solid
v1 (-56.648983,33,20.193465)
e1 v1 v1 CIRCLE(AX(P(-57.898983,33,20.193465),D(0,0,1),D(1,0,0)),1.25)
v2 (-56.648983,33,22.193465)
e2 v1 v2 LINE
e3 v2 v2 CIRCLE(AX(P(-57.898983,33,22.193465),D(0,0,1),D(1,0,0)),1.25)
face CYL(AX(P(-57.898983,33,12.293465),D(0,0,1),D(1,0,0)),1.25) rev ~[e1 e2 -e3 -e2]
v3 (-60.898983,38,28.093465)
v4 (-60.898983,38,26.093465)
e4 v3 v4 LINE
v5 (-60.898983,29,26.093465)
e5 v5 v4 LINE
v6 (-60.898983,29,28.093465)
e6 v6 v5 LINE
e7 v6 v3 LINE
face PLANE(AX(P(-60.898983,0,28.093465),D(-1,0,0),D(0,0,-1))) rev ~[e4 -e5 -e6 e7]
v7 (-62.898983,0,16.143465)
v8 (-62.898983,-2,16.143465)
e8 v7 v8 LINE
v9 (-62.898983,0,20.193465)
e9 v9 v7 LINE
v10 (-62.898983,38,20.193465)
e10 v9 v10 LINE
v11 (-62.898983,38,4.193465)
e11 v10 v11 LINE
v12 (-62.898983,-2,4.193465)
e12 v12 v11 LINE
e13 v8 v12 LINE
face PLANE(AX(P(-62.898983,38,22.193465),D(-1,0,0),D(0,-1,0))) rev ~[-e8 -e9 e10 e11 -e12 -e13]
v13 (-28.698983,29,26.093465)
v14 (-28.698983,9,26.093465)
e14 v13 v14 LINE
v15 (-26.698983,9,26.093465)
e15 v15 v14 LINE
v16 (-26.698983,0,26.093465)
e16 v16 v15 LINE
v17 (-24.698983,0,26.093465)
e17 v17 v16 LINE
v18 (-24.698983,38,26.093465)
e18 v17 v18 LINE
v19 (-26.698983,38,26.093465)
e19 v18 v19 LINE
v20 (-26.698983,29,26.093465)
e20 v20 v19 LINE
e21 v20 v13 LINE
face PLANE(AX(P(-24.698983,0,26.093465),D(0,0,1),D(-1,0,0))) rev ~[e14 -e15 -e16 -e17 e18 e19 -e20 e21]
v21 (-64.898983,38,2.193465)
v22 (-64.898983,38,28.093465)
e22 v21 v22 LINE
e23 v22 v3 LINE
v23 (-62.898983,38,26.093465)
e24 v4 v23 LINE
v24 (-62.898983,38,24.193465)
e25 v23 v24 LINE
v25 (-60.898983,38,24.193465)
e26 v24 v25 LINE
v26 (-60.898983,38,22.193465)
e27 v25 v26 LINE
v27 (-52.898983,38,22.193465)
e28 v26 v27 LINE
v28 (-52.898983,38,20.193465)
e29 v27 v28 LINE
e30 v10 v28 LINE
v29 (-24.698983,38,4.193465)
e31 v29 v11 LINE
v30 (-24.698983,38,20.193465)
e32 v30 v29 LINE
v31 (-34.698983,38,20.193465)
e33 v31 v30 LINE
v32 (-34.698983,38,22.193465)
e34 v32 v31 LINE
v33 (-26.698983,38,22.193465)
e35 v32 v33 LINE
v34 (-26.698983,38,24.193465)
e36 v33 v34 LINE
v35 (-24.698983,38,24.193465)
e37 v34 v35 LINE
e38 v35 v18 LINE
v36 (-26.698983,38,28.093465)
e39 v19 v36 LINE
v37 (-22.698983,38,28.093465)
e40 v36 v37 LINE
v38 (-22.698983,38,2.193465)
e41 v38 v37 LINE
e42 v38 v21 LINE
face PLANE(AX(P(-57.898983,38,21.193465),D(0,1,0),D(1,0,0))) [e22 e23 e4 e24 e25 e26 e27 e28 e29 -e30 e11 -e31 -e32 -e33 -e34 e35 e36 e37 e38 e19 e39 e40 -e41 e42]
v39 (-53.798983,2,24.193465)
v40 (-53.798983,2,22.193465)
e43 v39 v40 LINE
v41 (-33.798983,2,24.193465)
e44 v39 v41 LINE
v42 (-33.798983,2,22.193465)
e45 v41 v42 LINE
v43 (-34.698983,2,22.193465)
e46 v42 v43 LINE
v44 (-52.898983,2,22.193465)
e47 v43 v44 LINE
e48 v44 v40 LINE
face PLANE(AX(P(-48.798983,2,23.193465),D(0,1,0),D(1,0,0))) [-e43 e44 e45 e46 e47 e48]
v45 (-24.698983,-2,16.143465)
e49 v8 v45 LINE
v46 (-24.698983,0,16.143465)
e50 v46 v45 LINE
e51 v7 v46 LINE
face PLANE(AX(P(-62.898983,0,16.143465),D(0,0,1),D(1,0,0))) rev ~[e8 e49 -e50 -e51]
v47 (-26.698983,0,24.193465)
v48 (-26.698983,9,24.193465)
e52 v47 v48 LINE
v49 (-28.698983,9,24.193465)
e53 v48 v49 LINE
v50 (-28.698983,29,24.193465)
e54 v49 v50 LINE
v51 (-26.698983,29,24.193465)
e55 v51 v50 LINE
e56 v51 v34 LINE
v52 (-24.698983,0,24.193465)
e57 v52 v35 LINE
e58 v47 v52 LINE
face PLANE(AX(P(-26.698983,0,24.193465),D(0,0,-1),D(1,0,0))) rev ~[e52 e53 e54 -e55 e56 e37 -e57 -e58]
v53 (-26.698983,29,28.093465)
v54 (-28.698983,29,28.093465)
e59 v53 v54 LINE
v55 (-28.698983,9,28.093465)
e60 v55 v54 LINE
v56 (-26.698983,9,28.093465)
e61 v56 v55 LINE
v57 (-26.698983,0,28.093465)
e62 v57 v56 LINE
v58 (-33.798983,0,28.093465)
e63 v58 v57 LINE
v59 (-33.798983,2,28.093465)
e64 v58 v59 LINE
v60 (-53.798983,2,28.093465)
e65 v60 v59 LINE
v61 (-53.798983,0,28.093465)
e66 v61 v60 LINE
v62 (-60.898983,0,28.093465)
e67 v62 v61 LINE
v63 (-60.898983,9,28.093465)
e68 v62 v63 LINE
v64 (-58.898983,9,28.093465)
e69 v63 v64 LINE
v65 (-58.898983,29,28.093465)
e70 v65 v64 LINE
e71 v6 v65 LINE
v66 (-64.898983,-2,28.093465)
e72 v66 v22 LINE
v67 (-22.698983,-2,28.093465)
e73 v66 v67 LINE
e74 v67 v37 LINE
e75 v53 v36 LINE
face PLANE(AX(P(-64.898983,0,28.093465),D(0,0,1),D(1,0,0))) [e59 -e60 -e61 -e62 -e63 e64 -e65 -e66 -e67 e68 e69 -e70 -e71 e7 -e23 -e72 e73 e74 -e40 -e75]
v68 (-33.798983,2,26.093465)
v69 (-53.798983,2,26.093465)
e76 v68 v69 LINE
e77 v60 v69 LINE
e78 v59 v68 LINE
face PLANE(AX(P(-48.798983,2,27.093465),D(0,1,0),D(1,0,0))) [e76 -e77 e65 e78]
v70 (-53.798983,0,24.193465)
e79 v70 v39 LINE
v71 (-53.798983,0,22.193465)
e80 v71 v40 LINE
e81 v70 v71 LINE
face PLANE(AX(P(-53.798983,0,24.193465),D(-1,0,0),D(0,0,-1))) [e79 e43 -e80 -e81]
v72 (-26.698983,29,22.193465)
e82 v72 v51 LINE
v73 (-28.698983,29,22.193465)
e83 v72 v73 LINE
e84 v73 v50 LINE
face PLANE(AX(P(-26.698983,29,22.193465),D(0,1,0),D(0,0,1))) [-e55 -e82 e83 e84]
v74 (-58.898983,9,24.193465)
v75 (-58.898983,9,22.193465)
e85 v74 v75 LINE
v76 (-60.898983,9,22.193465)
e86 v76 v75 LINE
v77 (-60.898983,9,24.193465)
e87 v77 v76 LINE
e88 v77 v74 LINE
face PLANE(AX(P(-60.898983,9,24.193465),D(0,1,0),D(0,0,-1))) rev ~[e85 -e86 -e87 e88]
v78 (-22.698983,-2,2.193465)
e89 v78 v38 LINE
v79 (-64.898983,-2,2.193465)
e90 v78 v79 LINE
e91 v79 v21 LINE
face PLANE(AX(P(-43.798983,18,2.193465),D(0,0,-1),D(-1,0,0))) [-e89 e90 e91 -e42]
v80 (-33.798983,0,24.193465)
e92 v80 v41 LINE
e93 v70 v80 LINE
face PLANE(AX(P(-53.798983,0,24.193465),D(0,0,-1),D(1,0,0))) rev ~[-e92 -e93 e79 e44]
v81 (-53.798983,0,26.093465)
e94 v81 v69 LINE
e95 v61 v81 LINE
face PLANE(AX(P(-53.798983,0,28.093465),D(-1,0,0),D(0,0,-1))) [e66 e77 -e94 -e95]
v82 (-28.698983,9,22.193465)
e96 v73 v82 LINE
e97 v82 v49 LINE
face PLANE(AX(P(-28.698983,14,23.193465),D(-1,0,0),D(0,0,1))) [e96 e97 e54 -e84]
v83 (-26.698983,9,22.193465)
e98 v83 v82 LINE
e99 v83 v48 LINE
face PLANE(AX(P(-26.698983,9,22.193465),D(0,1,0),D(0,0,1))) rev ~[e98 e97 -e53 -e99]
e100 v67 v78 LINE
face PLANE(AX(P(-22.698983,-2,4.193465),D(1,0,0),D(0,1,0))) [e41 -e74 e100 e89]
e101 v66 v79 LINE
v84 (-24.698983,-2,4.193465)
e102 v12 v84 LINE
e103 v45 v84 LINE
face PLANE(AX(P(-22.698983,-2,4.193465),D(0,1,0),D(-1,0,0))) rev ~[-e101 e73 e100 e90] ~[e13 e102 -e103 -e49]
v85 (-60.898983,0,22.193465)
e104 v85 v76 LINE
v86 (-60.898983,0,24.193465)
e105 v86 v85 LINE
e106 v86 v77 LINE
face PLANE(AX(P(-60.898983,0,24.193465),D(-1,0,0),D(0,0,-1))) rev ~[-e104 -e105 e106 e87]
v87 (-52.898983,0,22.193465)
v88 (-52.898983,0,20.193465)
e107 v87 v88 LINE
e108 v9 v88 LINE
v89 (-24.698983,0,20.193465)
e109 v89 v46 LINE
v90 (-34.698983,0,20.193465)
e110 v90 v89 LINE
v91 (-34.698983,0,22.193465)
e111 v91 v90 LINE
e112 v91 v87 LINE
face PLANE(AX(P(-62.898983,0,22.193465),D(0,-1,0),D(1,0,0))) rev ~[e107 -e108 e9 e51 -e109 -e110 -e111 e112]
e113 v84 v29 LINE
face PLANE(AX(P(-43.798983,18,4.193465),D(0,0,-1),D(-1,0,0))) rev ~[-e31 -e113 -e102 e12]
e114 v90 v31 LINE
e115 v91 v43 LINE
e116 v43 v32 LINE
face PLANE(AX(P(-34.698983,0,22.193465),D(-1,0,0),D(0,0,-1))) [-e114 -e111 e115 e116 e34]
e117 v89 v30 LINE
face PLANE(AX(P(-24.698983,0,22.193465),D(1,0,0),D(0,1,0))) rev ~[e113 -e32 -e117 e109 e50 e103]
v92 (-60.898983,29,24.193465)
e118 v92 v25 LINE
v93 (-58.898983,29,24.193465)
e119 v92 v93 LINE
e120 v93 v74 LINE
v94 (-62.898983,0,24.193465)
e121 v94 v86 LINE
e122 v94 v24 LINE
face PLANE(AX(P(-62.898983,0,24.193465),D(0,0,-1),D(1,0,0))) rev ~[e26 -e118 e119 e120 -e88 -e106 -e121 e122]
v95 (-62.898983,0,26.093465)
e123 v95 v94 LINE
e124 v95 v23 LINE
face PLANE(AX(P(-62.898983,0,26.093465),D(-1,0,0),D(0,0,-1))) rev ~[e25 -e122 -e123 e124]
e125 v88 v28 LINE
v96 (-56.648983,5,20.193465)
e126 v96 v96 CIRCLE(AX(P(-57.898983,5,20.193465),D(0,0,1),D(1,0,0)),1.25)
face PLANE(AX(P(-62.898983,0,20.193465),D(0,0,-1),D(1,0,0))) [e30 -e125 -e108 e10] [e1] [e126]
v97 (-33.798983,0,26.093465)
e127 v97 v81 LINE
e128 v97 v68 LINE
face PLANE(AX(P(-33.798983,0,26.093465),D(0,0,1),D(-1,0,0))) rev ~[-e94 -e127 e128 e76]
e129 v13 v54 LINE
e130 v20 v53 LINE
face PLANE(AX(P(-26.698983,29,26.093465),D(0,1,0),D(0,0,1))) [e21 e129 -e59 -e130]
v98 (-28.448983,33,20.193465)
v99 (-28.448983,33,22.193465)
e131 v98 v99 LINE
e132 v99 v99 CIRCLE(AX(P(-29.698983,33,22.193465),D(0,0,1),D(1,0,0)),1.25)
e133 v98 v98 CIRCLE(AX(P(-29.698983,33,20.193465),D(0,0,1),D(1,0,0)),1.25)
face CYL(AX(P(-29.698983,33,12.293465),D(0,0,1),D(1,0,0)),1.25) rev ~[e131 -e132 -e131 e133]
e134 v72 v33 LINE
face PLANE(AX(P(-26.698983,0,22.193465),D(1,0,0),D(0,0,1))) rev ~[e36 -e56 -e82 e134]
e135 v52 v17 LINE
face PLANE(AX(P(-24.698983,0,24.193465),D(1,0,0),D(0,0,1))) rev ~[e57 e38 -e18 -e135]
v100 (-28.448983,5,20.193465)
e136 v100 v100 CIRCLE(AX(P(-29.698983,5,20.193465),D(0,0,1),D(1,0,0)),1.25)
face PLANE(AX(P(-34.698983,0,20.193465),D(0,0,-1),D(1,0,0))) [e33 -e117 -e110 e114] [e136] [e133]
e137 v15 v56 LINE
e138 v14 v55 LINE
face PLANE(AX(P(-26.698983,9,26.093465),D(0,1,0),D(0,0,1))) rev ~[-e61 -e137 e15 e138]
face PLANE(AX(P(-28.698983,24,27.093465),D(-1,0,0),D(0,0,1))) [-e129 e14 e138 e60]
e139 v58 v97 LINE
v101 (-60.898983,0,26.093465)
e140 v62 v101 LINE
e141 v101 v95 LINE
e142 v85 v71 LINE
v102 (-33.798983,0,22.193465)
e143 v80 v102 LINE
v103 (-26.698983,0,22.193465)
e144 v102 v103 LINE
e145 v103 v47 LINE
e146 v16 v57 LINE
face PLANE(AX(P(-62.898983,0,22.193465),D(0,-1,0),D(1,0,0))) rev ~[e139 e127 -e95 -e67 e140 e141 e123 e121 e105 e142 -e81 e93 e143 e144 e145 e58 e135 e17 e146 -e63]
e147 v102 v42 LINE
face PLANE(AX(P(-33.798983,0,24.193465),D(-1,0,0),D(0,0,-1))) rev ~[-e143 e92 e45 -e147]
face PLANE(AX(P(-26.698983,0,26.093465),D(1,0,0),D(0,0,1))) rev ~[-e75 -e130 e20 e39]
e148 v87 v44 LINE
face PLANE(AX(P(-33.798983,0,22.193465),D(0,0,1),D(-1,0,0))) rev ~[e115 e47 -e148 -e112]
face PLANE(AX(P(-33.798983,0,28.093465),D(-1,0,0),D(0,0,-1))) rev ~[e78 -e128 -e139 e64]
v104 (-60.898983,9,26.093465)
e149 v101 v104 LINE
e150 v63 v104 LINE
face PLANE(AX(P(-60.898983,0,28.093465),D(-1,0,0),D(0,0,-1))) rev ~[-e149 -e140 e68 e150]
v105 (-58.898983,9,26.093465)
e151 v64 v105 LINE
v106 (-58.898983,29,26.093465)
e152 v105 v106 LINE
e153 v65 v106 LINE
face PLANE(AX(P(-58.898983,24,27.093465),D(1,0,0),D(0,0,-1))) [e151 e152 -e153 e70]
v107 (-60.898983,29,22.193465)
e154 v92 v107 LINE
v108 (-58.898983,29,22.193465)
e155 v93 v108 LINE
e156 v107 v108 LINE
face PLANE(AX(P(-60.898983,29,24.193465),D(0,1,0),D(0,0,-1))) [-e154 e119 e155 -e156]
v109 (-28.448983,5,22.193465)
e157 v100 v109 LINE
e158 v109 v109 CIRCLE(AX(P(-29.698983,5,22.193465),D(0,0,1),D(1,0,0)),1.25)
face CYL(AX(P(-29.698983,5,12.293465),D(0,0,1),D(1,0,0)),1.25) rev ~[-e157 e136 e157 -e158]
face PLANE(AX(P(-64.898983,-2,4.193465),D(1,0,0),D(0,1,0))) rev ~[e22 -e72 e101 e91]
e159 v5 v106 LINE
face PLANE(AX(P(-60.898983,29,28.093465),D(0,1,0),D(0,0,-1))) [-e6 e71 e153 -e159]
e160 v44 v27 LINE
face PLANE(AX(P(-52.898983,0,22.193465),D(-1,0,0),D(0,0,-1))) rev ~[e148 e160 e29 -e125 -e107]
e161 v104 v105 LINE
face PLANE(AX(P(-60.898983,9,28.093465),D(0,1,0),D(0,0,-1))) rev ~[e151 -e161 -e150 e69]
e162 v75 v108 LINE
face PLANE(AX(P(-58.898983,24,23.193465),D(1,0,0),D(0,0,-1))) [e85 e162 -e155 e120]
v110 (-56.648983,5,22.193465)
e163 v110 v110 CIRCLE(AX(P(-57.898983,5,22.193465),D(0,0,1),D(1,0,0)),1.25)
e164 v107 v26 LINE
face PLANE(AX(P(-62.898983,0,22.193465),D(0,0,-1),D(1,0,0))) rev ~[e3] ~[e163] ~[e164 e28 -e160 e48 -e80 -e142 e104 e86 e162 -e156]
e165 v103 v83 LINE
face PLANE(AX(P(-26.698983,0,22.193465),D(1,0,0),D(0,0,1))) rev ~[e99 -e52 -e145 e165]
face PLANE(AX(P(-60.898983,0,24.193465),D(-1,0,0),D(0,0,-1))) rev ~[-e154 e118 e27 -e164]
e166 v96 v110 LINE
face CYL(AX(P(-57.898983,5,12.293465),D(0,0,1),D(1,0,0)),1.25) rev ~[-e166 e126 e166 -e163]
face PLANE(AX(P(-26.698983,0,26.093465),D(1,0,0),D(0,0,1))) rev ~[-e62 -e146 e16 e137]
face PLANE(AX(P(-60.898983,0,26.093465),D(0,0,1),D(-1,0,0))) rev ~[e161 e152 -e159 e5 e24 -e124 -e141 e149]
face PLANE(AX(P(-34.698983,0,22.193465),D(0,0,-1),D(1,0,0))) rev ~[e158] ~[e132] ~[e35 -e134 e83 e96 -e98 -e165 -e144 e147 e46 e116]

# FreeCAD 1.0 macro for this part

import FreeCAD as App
import Part
import Sketcher
Q = App.Units.Quantity

doc = App.newDocument("Part")
body = doc.addObject("PartDesign::Body", "Body")

sketch1 = body.newObject("Sketcher::SketchObject", "Sketch")
sketch1.AttachmentSupport = (doc.getObject("XZ_Plane"), [""])
sketch1.MapMode = "FlatFace"
sketch1.addGeometry([
    Part.LineSegment(App.Vector(-62.9, 26.1, 0), App.Vector(-62.9, 24.2, 0)),
    Part.LineSegment(App.Vector(-62.9, 24.2, 0), App.Vector(-60.9, 24.2, 0)),
    Part.LineSegment(App.Vector(-60.9, 24.2, 0), App.Vector(-60.9, 22.2, 0)),
    Part.LineSegment(App.Vector(-60.9, 22.2, 0), App.Vector(-64.9, 22.2, 0)),
    Part.LineSegment(App.Vector(-64.9, 22.2, 0), App.Vector(-64.9, 28.1, 0)),
    Part.LineSegment(App.Vector(-64.9, 28.1, 0), App.Vector(-60.9, 28.1, 0)),
    Part.LineSegment(App.Vector(-60.9, 28.1, 0), App.Vector(-60.9, 26.1, 0)),
    Part.LineSegment(App.Vector(-60.9, 26.1, 0), App.Vector(-62.9, 26.1, 0)),
], False)
sketch1.addConstraint([
    Sketcher.Constraint("Coincident", 0, 2, 1, 1),
    Sketcher.Constraint("Coincident", 1, 2, 2, 1),
    Sketcher.Constraint("Coincident", 2, 2, 3, 1),
    Sketcher.Constraint("Coincident", 3, 2, 4, 1),
    Sketcher.Constraint("Coincident", 4, 2, 5, 1),
    Sketcher.Constraint("Coincident", 5, 2, 6, 1),
    Sketcher.Constraint("Coincident", 6, 2, 7, 1),
    Sketcher.Constraint("Coincident", 7, 2, 0, 1),
    Sketcher.Constraint("Vertical", 0),
    Sketcher.Constraint("Horizontal", 1),
    Sketcher.Constraint("Vertical", 2),
    Sketcher.Constraint("Horizontal", 3),
    Sketcher.Constraint("Vertical", 4),
    Sketcher.Constraint("Horizontal", 5),
    Sketcher.Constraint("Vertical", 6),
    Sketcher.Constraint("Horizontal", 7),
    Sketcher.Constraint("Vertical", 2, 2, 5, 2),
    Sketcher.Constraint("Equal", 7, 2),
    Sketcher.Constraint("Equal", 2, 6),
    Sketcher.Constraint("DistanceX", 1, 1, 1, 2, Q("2 mm")),
    Sketcher.Constraint("DistanceX", 3, 2, 3, 1, Q("4 mm")),
    Sketcher.Constraint("DistanceY", 0, 2, 0, 1, Q("1.9 mm")),
    Sketcher.Constraint("DistanceX", 0, 2, -1, 1, Q("62.898983 mm")),
    Sketcher.Constraint("DistanceY", -1, 1, 0, 2, Q("24.193465 mm")),
])
pad1 = body.newObject("PartDesign::Pad", "Pad")
pad1.Profile = sketch1
pad1.Length = 38
pad1.Reversed = True
body2 = doc.addObject("PartDesign::Body", "Body001")

sketch2 = body2.newObject("Sketcher::SketchObject", "Sketch001")
sketch2.AttachmentSupport = (doc.getObject("XZ_Plane001"), [""])
sketch2.MapMode = "FlatFace"
sketch2.addGeometry([
    Part.LineSegment(App.Vector(-26.7, 22.2, 0), App.Vector(-26.7, 24.2, 0)),
    Part.LineSegment(App.Vector(-26.7, 24.2, 0), App.Vector(-24.7, 24.2, 0)),
    Part.LineSegment(App.Vector(-24.7, 24.2, 0), App.Vector(-24.7, 26.1, 0)),
    Part.LineSegment(App.Vector(-24.7, 26.1, 0), App.Vector(-26.7, 26.1, 0)),
    Part.LineSegment(App.Vector(-26.7, 26.1, 0), App.Vector(-26.7, 28.1, 0)),
    Part.LineSegment(App.Vector(-26.7, 28.1, 0), App.Vector(-22.7, 28.1, 0)),
    Part.LineSegment(App.Vector(-22.7, 28.1, 0), App.Vector(-22.7, 22.2, 0)),
    Part.LineSegment(App.Vector(-22.7, 22.2, 0), App.Vector(-26.7, 22.2, 0)),
], False)
sketch2.addConstraint([
    Sketcher.Constraint("Coincident", 0, 2, 1, 1),
    Sketcher.Constraint("Coincident", 1, 2, 2, 1),
    Sketcher.Constraint("Coincident", 2, 2, 3, 1),
    Sketcher.Constraint("Coincident", 3, 2, 4, 1),
    Sketcher.Constraint("Coincident", 4, 2, 5, 1),
    Sketcher.Constraint("Coincident", 5, 2, 6, 1),
    Sketcher.Constraint("Coincident", 6, 2, 7, 1),
    Sketcher.Constraint("Coincident", 7, 2, 0, 1),
    Sketcher.Constraint("Vertical", 0),
    Sketcher.Constraint("Horizontal", 1),
    Sketcher.Constraint("Vertical", 2),
    Sketcher.Constraint("Horizontal", 3),
    Sketcher.Constraint("Vertical", 4),
    Sketcher.Constraint("Horizontal", 5),
    Sketcher.Constraint("Vertical", 6),
    Sketcher.Constraint("Horizontal", 7),
    Sketcher.Constraint("Vertical", 0, 2, 3, 2),
    Sketcher.Constraint("Equal", 3, 0),
    Sketcher.Constraint("Equal", 0, 4),
    Sketcher.Constraint("DistanceX", 1, 1, 1, 2, Q("2 mm")),
    Sketcher.Constraint("DistanceX", 5, 1, 5, 2, Q("4 mm")),
    Sketcher.Constraint("DistanceY", 2, 1, 2, 2, Q("1.9 mm")),
    Sketcher.Constraint("DistanceX", 0, 2, -1, 1, Q("26.698983 mm")),
    Sketcher.Constraint("DistanceY", -1, 1, 0, 2, Q("24.193465 mm")),
])
pad2 = body2.newObject("PartDesign::Pad", "Pad001")
pad2.Profile = sketch2
pad2.Length = 38
pad2.Reversed = True
body.AllowCompound = True
doc.recompute()

boolean = body.newObject("PartDesign::Boolean", "Boolean")
boolean.Type = "Fuse"
boolean.addObjects([body2])

sketch3 = body.newObject("Sketcher::SketchObject", "Sketch002")
sketch3.AttachmentSupport = (doc.getObject("XZ_Plane"), [""])
sketch3.MapMode = "FlatFace"
sketch3.addGeometry([
    Part.LineSegment(App.Vector(-65, 22, 0), App.Vector(-65, 28, 0)),
    Part.LineSegment(App.Vector(-65, 28, 0), App.Vector(-23, 28, 0)),
    Part.LineSegment(App.Vector(-23, 28, 0), App.Vector(-23, 22, 0)),
    Part.LineSegment(App.Vector(-23, 22, 0), App.Vector(-65, 22, 0)),
], False)
sketch3.addConstraint([
    Sketcher.Constraint("Coincident", 0, 2, 1, 1),
    Sketcher.Constraint("Coincident", 1, 2, 2, 1),
    Sketcher.Constraint("Coincident", 2, 2, 3, 1),
    Sketcher.Constraint("Coincident", 3, 2, 0, 1),
    Sketcher.Constraint("Vertical", 0),
    Sketcher.Constraint("Horizontal", 1),
    Sketcher.Constraint("Vertical", 2),
    Sketcher.Constraint("Horizontal", 3),
    Sketcher.Constraint("DistanceX", 1, 1, 1, 2, Q("42.2 mm")),
    Sketcher.Constraint("DistanceY", 0, 1, 0, 2, Q("5.9 mm")),
    Sketcher.Constraint("DistanceX", 0, 2, -1, 1, Q("64.898983 mm")),
    Sketcher.Constraint("DistanceY", -1, 1, 0, 2, Q("28.093465 mm")),
])
pad3 = body.newObject("PartDesign::Pad", "Pad002")
pad3.Profile = sketch3
pad3.Length = 2

sketch4 = body.newObject("Sketcher::SketchObject", "Sketch003")
sketch4.AttachmentSupport = (doc.getObject("XY_Plane"), [""])
sketch4.MapMode = "FlatFace"
sketch4.AttachmentOffset = App.Placement(App.Vector(0, 0, 22.193465), App.Rotation())
sketch4.addGeometry([
    Part.LineSegment(App.Vector(-24.7, 38, 0), App.Vector(-22.7, 38, 0)),
    Part.LineSegment(App.Vector(-22.7, 38, 0), App.Vector(-22.7, -2, 0)),
    Part.LineSegment(App.Vector(-22.7, -2, 0), App.Vector(-64.9, -2, 0)),
    Part.LineSegment(App.Vector(-64.9, -2, 0), App.Vector(-64.9, 38, 0)),
    Part.LineSegment(App.Vector(-64.9, 38, 0), App.Vector(-62.9, 38, 0)),
    Part.LineSegment(App.Vector(-62.9, 38, 0), App.Vector(-62.9, 0, 0)),
    Part.LineSegment(App.Vector(-62.9, 0, 0), App.Vector(-24.7, 0, 0)),
    Part.LineSegment(App.Vector(-24.7, 0, 0), App.Vector(-24.7, 38, 0)),
], False)
sketch4.addConstraint([
    Sketcher.Constraint("Coincident", 0, 2, 1, 1),
    Sketcher.Constraint("Coincident", 1, 2, 2, 1),
    Sketcher.Constraint("Coincident", 2, 2, 3, 1),
    Sketcher.Constraint("Coincident", 3, 2, 4, 1),
    Sketcher.Constraint("Coincident", 4, 2, 5, 1),
    Sketcher.Constraint("Coincident", 5, 2, 6, 1),
    Sketcher.Constraint("Coincident", 6, 2, 7, 1),
    Sketcher.Constraint("Coincident", 7, 2, 0, 1),
    Sketcher.Constraint("Horizontal", 0),
    Sketcher.Constraint("Vertical", 1),
    Sketcher.Constraint("Horizontal", 2),
    Sketcher.Constraint("Vertical", 3),
    Sketcher.Constraint("Horizontal", 4),
    Sketcher.Constraint("Vertical", 5),
    Sketcher.Constraint("Horizontal", 6),
    Sketcher.Constraint("Vertical", 7),
    Sketcher.Constraint("PointOnObject", 5, 2, -1),
    Sketcher.Constraint("Horizontal", 0, 2, 3, 2),
    Sketcher.Constraint("Equal", 0, 4),
    Sketcher.Constraint("DistanceX", 0, 1, 0, 2, Q("2 mm")),
    Sketcher.Constraint("DistanceY", 1, 2, 1, 1, Q("40 mm")),
    Sketcher.Constraint("DistanceY", 5, 2, 5, 1, Q("38 mm")),
    Sketcher.Constraint("DistanceX", 2, 2, 2, 1, Q("42.2 mm")),
    Sketcher.Constraint("DistanceX", 0, 2, -1, 1, Q("22.698983 mm")),
])
pad4 = body.newObject("PartDesign::Pad", "Pad003")
pad4.Profile = sketch4
pad4.Length = 18
pad4.Reversed = True

sketch5 = body.newObject("Sketcher::SketchObject", "Sketch004")
sketch5.AttachmentSupport = (doc.getObject("XY_Plane"), [""])
sketch5.MapMode = "FlatFace"
sketch5.AttachmentOffset = App.Placement(App.Vector(0, 0, 4.193465), App.Rotation())
sketch5.addGeometry([
    Part.LineSegment(App.Vector(-23, 38, 0), App.Vector(-23, -2, 0)),
    Part.LineSegment(App.Vector(-23, -2, 0), App.Vector(-65, -2, 0)),
    Part.LineSegment(App.Vector(-65, -2, 0), App.Vector(-65, 38, 0)),
    Part.LineSegment(App.Vector(-65, 38, 0), App.Vector(-23, 38, 0)),
], False)
sketch5.addConstraint([
    Sketcher.Constraint("Coincident", 0, 2, 1, 1),
    Sketcher.Constraint("Coincident", 1, 2, 2, 1),
    Sketcher.Constraint("Coincident", 2, 2, 3, 1),
    Sketcher.Constraint("Coincident", 3, 2, 0, 1),
    Sketcher.Constraint("Vertical", 0),
    Sketcher.Constraint("Horizontal", 1),
    Sketcher.Constraint("Vertical", 2),
    Sketcher.Constraint("Horizontal", 3),
    Sketcher.Constraint("DistanceY", 0, 2, 0, 1, Q("40 mm")),
    Sketcher.Constraint("DistanceX", 1, 2, 1, 1, Q("42.2 mm")),
    Sketcher.Constraint("DistanceY", 0, 2, -1, 1, Q("2 mm")),
    Sketcher.Constraint("DistanceX", 0, 2, -1, 1, Q("22.698983 mm")),
])
pad5 = body.newObject("PartDesign::Pad", "Pad004")
pad5.Profile = sketch5
pad5.Length = 2
pad5.Reversed = True

sketch6 = body.newObject("Sketcher::SketchObject", "Sketch005")
sketch6.AttachmentSupport = (doc.getObject("XZ_Plane"), [""])
sketch6.MapMode = "FlatFace"
sketch6.addGeometry([
    Part.LineSegment(App.Vector(-63, 4, 0), App.Vector(-63, 16, 0)),
    Part.LineSegment(App.Vector(-63, 16, 0), App.Vector(-25, 16, 0)),
    Part.LineSegment(App.Vector(-25, 16, 0), App.Vector(-25, 4, 0)),
    Part.LineSegment(App.Vector(-25, 4, 0), App.Vector(-63, 4, 0)),
], False)
sketch6.addConstraint([
    Sketcher.Constraint("Coincident", 0, 2, 1, 1),
    Sketcher.Constraint("Coincident", 1, 2, 2, 1),
    Sketcher.Constraint("Coincident", 2, 2, 3, 1),
    Sketcher.Constraint("Coincident", 3, 2, 0, 1),
    Sketcher.Constraint("Vertical", 0),
    Sketcher.Constraint("Horizontal", 1),
    Sketcher.Constraint("Vertical", 2),
    Sketcher.Constraint("Horizontal", 3),
    Sketcher.Constraint("DistanceX", 1, 1, 1, 2, Q("38.2 mm")),
    Sketcher.Constraint("DistanceY", 0, 1, 0, 2, Q("11.95 mm")),
    Sketcher.Constraint("DistanceX", 0, 2, -1, 1, Q("62.898983 mm")),
    Sketcher.Constraint("DistanceY", -1, 1, 0, 2, Q("16.143465 mm")),
])
pocket1 = body.newObject("PartDesign::Pocket", "Pocket")
pocket1.Profile = sketch6
pocket1.Type = "ThroughAll"
pocket1.Reversed = True

sketch7 = body.newObject("Sketcher::SketchObject", "Sketch006")
sketch7.AttachmentSupport = (doc.getObject("YZ_Plane"), [""])
sketch7.MapMode = "FlatFace"
sketch7.AttachmentOffset = App.Placement(App.Vector(0, 0, -60.898983), App.Rotation())
sketch7.addGeometry([
    Part.LineSegment(App.Vector(29, 28.1, 0), App.Vector(9, 28.1, 0)),
    Part.LineSegment(App.Vector(9, 28.1, 0), App.Vector(9, 26.1, 0)),
    Part.LineSegment(App.Vector(9, 26.1, 0), App.Vector(29, 26.1, 0)),
    Part.LineSegment(App.Vector(29, 26.1, 0), App.Vector(29, 28.1, 0)),
    Part.LineSegment(App.Vector(29, 24.2, 0), App.Vector(9, 24.2, 0)),
    Part.LineSegment(App.Vector(9, 24.2, 0), App.Vector(9, 22.2, 0)),
    Part.LineSegment(App.Vector(9, 22.2, 0), App.Vector(29, 22.2, 0)),
    Part.LineSegment(App.Vector(29, 22.2, 0), App.Vector(29, 24.2, 0)),
], False)
sketch7.addConstraint([
    Sketcher.Constraint("Coincident", 0, 2, 1, 1),
    Sketcher.Constraint("Coincident", 1, 2, 2, 1),
    Sketcher.Constraint("Coincident", 2, 2, 3, 1),
    Sketcher.Constraint("Coincident", 3, 2, 0, 1),
    Sketcher.Constraint("Coincident", 4, 2, 5, 1),
    Sketcher.Constraint("Coincident", 5, 2, 6, 1),
    Sketcher.Constraint("Coincident", 6, 2, 7, 1),
    Sketcher.Constraint("Coincident", 7, 2, 4, 1),
    Sketcher.Constraint("Horizontal", 0),
    Sketcher.Constraint("Vertical", 1),
    Sketcher.Constraint("Horizontal", 2),
    Sketcher.Constraint("Vertical", 3),
    Sketcher.Constraint("Horizontal", 4),
    Sketcher.Constraint("Vertical", 5),
    Sketcher.Constraint("Horizontal", 6),
    Sketcher.Constraint("Vertical", 7),
    Sketcher.Constraint("Vertical", 1, 2, 4, 2),
    Sketcher.Constraint("Vertical", 3, 2, 6, 2),
    Sketcher.Constraint("Equal", 3, 5),
    Sketcher.Constraint("DistanceX", 0, 2, 0, 1, Q("20 mm")),
    Sketcher.Constraint("DistanceY", 1, 2, 1, 1, Q("2 mm")),
    Sketcher.Constraint("DistanceX", -1, 1, 0, 2, Q("9 mm")),
    Sketcher.Constraint("DistanceY", 4, 2, 1, 2, Q("1.9 mm")),
    Sketcher.Constraint("DistanceY", -1, 1, 0, 2, Q("28.093465 mm")),
])
pad6 = body.newObject("PartDesign::Pad", "Pad005")
pad6.Profile = sketch7
pad6.Length = 2

sketch8 = body.newObject("Sketcher::SketchObject", "Sketch007")
sketch8.AttachmentSupport = (doc.getObject("YZ_Plane"), [""])
sketch8.MapMode = "FlatFace"
sketch8.AttachmentOffset = App.Placement(App.Vector(0, 0, -26.698983), App.Rotation())
sketch8.addGeometry([
    Part.LineSegment(App.Vector(29, 26.1, 0), App.Vector(9, 26.1, 0)),
    Part.LineSegment(App.Vector(9, 26.1, 0), App.Vector(9, 28.1, 0)),
    Part.LineSegment(App.Vector(9, 28.1, 0), App.Vector(29, 28.1, 0)),
    Part.LineSegment(App.Vector(29, 28.1, 0), App.Vector(29, 26.1, 0)),
    Part.LineSegment(App.Vector(9, 22.2, 0), App.Vector(9, 24.2, 0)),
    Part.LineSegment(App.Vector(9, 24.2, 0), App.Vector(29, 24.2, 0)),
    Part.LineSegment(App.Vector(29, 24.2, 0), App.Vector(29, 22.2, 0)),
    Part.LineSegment(App.Vector(29, 22.2, 0), App.Vector(9, 22.2, 0)),
], False)
sketch8.addConstraint([
    Sketcher.Constraint("Coincident", 0, 2, 1, 1),
    Sketcher.Constraint("Coincident", 1, 2, 2, 1),
    Sketcher.Constraint("Coincident", 2, 2, 3, 1),
    Sketcher.Constraint("Coincident", 3, 2, 0, 1),
    Sketcher.Constraint("Coincident", 4, 2, 5, 1),
    Sketcher.Constraint("Coincident", 5, 2, 6, 1),
    Sketcher.Constraint("Coincident", 6, 2, 7, 1),
    Sketcher.Constraint("Coincident", 7, 2, 4, 1),
    Sketcher.Constraint("Horizontal", 0),
    Sketcher.Constraint("Vertical", 1),
    Sketcher.Constraint("Horizontal", 2),
    Sketcher.Constraint("Vertical", 3),
    Sketcher.Constraint("Vertical", 4),
    Sketcher.Constraint("Horizontal", 5),
    Sketcher.Constraint("Vertical", 6),
    Sketcher.Constraint("Horizontal", 7),
    Sketcher.Constraint("Vertical", 1, 2, 4, 2),
    Sketcher.Constraint("Vertical", 3, 2, 5, 2),
    Sketcher.Constraint("Equal", 3, 4),
    Sketcher.Constraint("DistanceX", 0, 2, 0, 1, Q("20 mm")),
    Sketcher.Constraint("DistanceY", 1, 1, 1, 2, Q("2 mm")),
    Sketcher.Constraint("DistanceX", -1, 1, 0, 2, Q("9 mm")),
    Sketcher.Constraint("DistanceY", 4, 2, 0, 2, Q("1.9 mm")),
    Sketcher.Constraint("DistanceY", -1, 1, 0, 2, Q("26.093465 mm")),
])
pad7 = body.newObject("PartDesign::Pad", "Pad006")
pad7.Profile = sketch8
pad7.Length = 2
pad7.Reversed = True

sketch9 = body.newObject("Sketcher::SketchObject", "Sketch008")
sketch9.AttachmentSupport = (doc.getObject("XZ_Plane"), [""])
sketch9.MapMode = "FlatFace"
sketch9.addGeometry([
    Part.LineSegment(App.Vector(-53.8, 22.2, 0), App.Vector(-53.8, 24.2, 0)),
    Part.LineSegment(App.Vector(-53.8, 24.2, 0), App.Vector(-33.8, 24.2, 0)),
    Part.LineSegment(App.Vector(-33.8, 24.2, 0), App.Vector(-33.8, 22.2, 0)),
    Part.LineSegment(App.Vector(-33.8, 22.2, 0), App.Vector(-53.8, 22.2, 0)),
    Part.LineSegment(App.Vector(-53.8, 26.1, 0), App.Vector(-53.8, 28.1, 0)),
    Part.LineSegment(App.Vector(-53.8, 28.1, 0), App.Vector(-33.8, 28.1, 0)),
    Part.LineSegment(App.Vector(-33.8, 28.1, 0), App.Vector(-33.8, 26.1, 0)),
    Part.LineSegment(App.Vector(-33.8, 26.1, 0), App.Vector(-53.8, 26.1, 0)),
], False)
sketch9.addConstraint([
    Sketcher.Constraint("Coincident", 0, 2, 1, 1),
    Sketcher.Constraint("Coincident", 1, 2, 2, 1),
    Sketcher.Constraint("Coincident", 2, 2, 3, 1),
    Sketcher.Constraint("Coincident", 3, 2, 0, 1),
    Sketcher.Constraint("Coincident", 4, 2, 5, 1),
    Sketcher.Constraint("Coincident", 5, 2, 6, 1),
    Sketcher.Constraint("Coincident", 6, 2, 7, 1),
    Sketcher.Constraint("Coincident", 7, 2, 4, 1),
    Sketcher.Constraint("Vertical", 0),
    Sketcher.Constraint("Horizontal", 1),
    Sketcher.Constraint("Vertical", 2),
    Sketcher.Constraint("Horizontal", 3),
    Sketcher.Constraint("Vertical", 4),
    Sketcher.Constraint("Horizontal", 5),
    Sketcher.Constraint("Vertical", 6),
    Sketcher.Constraint("Horizontal", 7),
    Sketcher.Constraint("Vertical", 3, 2, 4, 2),
    Sketcher.Constraint("Vertical", 2, 2, 5, 2),
    Sketcher.Constraint("Equal", 2, 4),
    Sketcher.Constraint("DistanceX", 1, 1, 1, 2, Q("20 mm")),
    Sketcher.Constraint("DistanceY", 0, 1, 0, 2, Q("2 mm")),
    Sketcher.Constraint("DistanceY", 0, 2, 4, 2, Q("3.9 mm")),
    Sketcher.Constraint("DistanceX", 0, 2, -1, 1, Q("53.798983 mm")),
    Sketcher.Constraint("DistanceY", -1, 1, 0, 2, Q("24.193465 mm")),
])
pad8 = body.newObject("PartDesign::Pad", "Pad007")
pad8.Profile = sketch9
pad8.Length = 2
pad8.Reversed = True

sketch10 = body.newObject("Sketcher::SketchObject", "Sketch009")
sketch10.AttachmentSupport = (doc.getObject("XZ_Plane"), [""])
sketch10.MapMode = "FlatFace"
sketch10.addGeometry([
    Part.LineSegment(App.Vector(-62.9, 20.2, 0), App.Vector(-62.9, 22.2, 0)),
    Part.LineSegment(App.Vector(-62.9, 22.2, 0), App.Vector(-52.9, 22.2, 0)),
    Part.LineSegment(App.Vector(-52.9, 22.2, 0), App.Vector(-52.9, 20.2, 0)),
    Part.LineSegment(App.Vector(-52.9, 20.2, 0), App.Vector(-62.9, 20.2, 0)),
    Part.LineSegment(App.Vector(-34.7, 20.2, 0), App.Vector(-34.7, 22.2, 0)),
    Part.LineSegment(App.Vector(-34.7, 22.2, 0), App.Vector(-24.7, 22.2, 0)),
    Part.LineSegment(App.Vector(-24.7, 22.2, 0), App.Vector(-24.7, 20.2, 0)),
    Part.LineSegment(App.Vector(-24.7, 20.2, 0), App.Vector(-34.7, 20.2, 0)),
], False)
sketch10.addConstraint([
    Sketcher.Constraint("Coincident", 0, 2, 1, 1),
    Sketcher.Constraint("Coincident", 1, 2, 2, 1),
    Sketcher.Constraint("Coincident", 2, 2, 3, 1),
    Sketcher.Constraint("Coincident", 3, 2, 0, 1),
    Sketcher.Constraint("Coincident", 4, 2, 5, 1),
    Sketcher.Constraint("Coincident", 5, 2, 6, 1),
    Sketcher.Constraint("Coincident", 6, 2, 7, 1),
    Sketcher.Constraint("Coincident", 7, 2, 4, 1),
    Sketcher.Constraint("Vertical", 0),
    Sketcher.Constraint("Horizontal", 1),
    Sketcher.Constraint("Vertical", 2),
    Sketcher.Constraint("Horizontal", 3),
    Sketcher.Constraint("Vertical", 4),
    Sketcher.Constraint("Horizontal", 5),
    Sketcher.Constraint("Vertical", 6),
    Sketcher.Constraint("Horizontal", 7),
    Sketcher.Constraint("Horizontal", 1, 2, 4, 2),
    Sketcher.Constraint("Horizontal", 3, 2, 6, 2),
    Sketcher.Constraint("Equal", 3, 5),
    Sketcher.Constraint("DistanceX", 1, 1, 1, 2, Q("10 mm")),
    Sketcher.Constraint("DistanceY", 0, 1, 0, 2, Q("2 mm")),
    Sketcher.Constraint("DistanceX", 1, 2, 4, 2, Q("18.2 mm")),
    Sketcher.Constraint("DistanceX", 0, 2, -1, 1, Q("62.898983 mm")),
    Sketcher.Constraint("DistanceY", -1, 1, 0, 2, Q("22.193465 mm")),
])
pad9 = body.newObject("PartDesign::Pad", "Pad008")
pad9.Profile = sketch10
pad9.Length = 38
pad9.Reversed = True

sketch11 = body.newObject("Sketcher::SketchObject", "Sketch010")
sketch11.AttachmentSupport = (doc.getObject("XY_Plane"), [""])
sketch11.MapMode = "FlatFace"
sketch11.AttachmentOffset = App.Placement(App.Vector(0, 0, 20.193465), App.Rotation())
sketch11.addGeometry([
    Part.Circle(App.Vector(-57.9, 33, 0), App.Vector(0, 0, 1), 1.2),
    Part.Circle(App.Vector(-57.9, 5, 0), App.Vector(0, 0, 1), 1.2),
], False)
sketch11.addConstraint([
    Sketcher.Constraint("Equal", 0, 1),
    Sketcher.Constraint("Vertical", 0, 3, 1, 3),
    Sketcher.Constraint("Diameter", 0, Q("2.5 mm")),
    Sketcher.Constraint("DistanceY", -1, 1, 0, 3, Q("33 mm")),
    Sketcher.Constraint("DistanceY", -1, 1, 1, 3, Q("5 mm")),
    Sketcher.Constraint("DistanceX", 0, 3, -1, 1, Q("57.898983 mm")),
])
doc.recompute()
hole = body.newObject("PartDesign::Hole", "Hole")
hole.Profile = sketch11
hole.ThreadType = "None"
hole.Diameter = 2.5
hole.DepthType = "Dimension"
hole.Depth = 7.9
hole.DrillPoint = "Flat"
hole.Reversed = True

sketch12 = body.newObject("Sketcher::SketchObject", "Sketch011")
sketch12.AttachmentSupport = (doc.getObject("XY_Plane"), [""])
sketch12.MapMode = "FlatFace"
sketch12.AttachmentOffset = App.Placement(App.Vector(0, 0, 20.193465), App.Rotation())
sketch12.addGeometry([
    Part.Circle(App.Vector(-29.7, 33, 0), App.Vector(0, 0, 1), 1.2),
    Part.Circle(App.Vector(-29.7, 5, 0), App.Vector(0, 0, 1), 1.2),
], False)
sketch12.addConstraint([
    Sketcher.Constraint("Equal", 0, 1),
    Sketcher.Constraint("Vertical", 0, 3, 1, 3),
    Sketcher.Constraint("Diameter", 0, Q("2.5 mm")),
    Sketcher.Constraint("DistanceY", -1, 1, 0, 3, Q("33 mm")),
    Sketcher.Constraint("DistanceY", -1, 1, 1, 3, Q("5 mm")),
    Sketcher.Constraint("DistanceX", 0, 3, -1, 1, Q("29.698983 mm")),
])
doc.recompute()
hole2 = body.newObject("PartDesign::Hole", "Hole001")
hole2.Profile = sketch12
hole2.ThreadType = "None"
hole2.Diameter = 2.5
hole2.DepthType = "Dimension"
hole2.Depth = 7.9
hole2.DrillPoint = "Flat"
hole2.Reversed = True

doc.recompute()
